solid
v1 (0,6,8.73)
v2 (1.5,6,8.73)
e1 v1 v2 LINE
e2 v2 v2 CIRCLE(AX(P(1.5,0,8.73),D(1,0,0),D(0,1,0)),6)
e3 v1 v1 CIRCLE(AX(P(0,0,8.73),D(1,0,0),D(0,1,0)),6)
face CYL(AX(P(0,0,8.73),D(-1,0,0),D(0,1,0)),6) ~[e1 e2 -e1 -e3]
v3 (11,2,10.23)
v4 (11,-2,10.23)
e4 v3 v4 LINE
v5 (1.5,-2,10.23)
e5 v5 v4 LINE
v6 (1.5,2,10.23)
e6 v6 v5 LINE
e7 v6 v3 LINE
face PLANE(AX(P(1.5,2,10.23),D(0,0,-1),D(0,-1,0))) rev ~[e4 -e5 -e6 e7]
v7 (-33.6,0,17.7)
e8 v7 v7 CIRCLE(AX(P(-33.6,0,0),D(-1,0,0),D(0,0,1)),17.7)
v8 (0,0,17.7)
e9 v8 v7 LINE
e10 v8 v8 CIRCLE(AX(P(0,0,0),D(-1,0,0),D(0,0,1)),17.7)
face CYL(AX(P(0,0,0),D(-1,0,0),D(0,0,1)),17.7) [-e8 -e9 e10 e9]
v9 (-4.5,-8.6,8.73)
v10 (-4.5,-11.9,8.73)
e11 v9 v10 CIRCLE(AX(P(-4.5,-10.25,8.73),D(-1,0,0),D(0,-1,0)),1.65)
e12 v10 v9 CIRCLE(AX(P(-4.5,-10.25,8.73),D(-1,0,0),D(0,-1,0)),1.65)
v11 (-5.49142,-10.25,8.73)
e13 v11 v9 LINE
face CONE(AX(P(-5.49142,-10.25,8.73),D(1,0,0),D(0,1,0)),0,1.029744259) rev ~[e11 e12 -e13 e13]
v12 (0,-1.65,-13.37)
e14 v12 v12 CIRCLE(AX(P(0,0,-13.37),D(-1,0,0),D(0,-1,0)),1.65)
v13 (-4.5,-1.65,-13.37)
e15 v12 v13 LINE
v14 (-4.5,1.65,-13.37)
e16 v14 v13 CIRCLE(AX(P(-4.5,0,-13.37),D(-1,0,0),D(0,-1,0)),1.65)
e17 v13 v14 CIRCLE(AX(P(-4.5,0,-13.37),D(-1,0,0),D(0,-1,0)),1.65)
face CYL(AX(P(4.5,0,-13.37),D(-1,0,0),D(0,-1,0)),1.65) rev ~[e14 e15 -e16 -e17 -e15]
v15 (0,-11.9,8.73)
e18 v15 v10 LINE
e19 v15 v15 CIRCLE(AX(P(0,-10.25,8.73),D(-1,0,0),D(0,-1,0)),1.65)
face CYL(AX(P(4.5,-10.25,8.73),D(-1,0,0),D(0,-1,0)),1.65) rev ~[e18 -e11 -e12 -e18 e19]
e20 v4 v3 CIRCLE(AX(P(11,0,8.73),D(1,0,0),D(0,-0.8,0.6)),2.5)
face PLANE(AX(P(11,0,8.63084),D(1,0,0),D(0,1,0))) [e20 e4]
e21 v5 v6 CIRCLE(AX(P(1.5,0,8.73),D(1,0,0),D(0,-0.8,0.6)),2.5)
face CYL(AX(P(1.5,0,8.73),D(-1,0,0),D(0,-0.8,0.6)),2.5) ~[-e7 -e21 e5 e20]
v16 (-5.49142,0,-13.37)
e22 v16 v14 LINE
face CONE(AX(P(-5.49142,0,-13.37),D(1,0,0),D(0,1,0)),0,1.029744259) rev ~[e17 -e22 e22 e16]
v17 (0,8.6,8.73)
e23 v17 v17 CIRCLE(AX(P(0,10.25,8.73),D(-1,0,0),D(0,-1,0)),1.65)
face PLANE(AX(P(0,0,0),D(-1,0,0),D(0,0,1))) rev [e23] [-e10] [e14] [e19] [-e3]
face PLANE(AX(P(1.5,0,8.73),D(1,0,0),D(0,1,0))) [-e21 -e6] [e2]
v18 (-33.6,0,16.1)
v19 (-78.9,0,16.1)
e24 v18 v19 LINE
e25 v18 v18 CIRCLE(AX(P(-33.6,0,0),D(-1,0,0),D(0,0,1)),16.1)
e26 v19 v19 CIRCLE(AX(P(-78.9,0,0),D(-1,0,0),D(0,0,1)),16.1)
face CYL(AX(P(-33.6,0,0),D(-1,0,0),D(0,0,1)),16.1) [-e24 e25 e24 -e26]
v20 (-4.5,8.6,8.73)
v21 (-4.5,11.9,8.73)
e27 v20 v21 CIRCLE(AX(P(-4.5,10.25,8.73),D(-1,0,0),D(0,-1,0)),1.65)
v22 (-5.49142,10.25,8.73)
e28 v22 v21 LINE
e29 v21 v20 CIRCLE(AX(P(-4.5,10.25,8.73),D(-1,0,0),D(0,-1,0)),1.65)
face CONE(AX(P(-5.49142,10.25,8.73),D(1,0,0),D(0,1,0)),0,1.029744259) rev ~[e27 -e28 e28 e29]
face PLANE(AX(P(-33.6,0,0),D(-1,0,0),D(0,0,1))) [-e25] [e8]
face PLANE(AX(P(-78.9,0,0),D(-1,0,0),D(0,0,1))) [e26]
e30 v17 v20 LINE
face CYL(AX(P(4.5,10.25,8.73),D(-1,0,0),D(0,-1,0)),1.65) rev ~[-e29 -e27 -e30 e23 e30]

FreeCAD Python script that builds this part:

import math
import FreeCAD as App
import Part
import Sketcher

V = App.Vector


def add_polygon(sketch, points):
    """Adds a closed chain of lines whose ends are joined by coincident constraints."""
    first, n = sketch.GeometryCount, len(points)
    for a, b in zip(points, points[1:] + points[:1]):
        sketch.addGeometry(Part.LineSegment(App.Vector(*a, 0), App.Vector(*b, 0)), False)
    for i in range(n):
        sketch.addConstraint(Sketcher.Constraint("Coincident", first + i, 2, first + (i + 1) % n, 1))

doc = App.newDocument("Part")
body = doc.addObject("PartDesign::Body", "Body")

# Sketch on XZ plane
sketch1 = body.newObject("Sketcher::SketchObject", "Sketch")
sketch1.AttachmentSupport = (doc.getObject("XZ_Plane"), [""])
sketch1.MapMode = "FlatFace"
add_polygon(sketch1, [(-78.9, 16.1), (-78.9, 0), (0, 0), (0, 17.7), (-33.6, 17.7), (-33.6, 16.1)])  # lines 0-5
sketch1.addConstraint(Sketcher.Constraint("Vertical", 0))
sketch1.addConstraint(Sketcher.Constraint("Horizontal", 1))
sketch1.addConstraint(Sketcher.Constraint("Vertical", 2))
sketch1.addConstraint(Sketcher.Constraint("Horizontal", 3))
sketch1.addConstraint(Sketcher.Constraint("Vertical", 4))
sketch1.addConstraint(Sketcher.Constraint("Horizontal", 5))
sketch1.addConstraint(Sketcher.Constraint("Coincident", 1, 2, -1, 1))
sketch1.addConstraint(Sketcher.Constraint("DistanceX", 1, 1, 1, 2, 78.9))
sketch1.addConstraint(Sketcher.Constraint("DistanceX", 3, 2, 3, 1, 33.6))
sketch1.addConstraint(Sketcher.Constraint("DistanceY", 0, 2, 0, 1, 16.1))
sketch1.addConstraint(Sketcher.Constraint("DistanceY", 2, 1, 2, 2, 17.7))
revolution = body.newObject("PartDesign::Revolution", "Revolution")
revolution.Profile = sketch1
revolution.ReferenceAxis = (sketch1, ["H_Axis"])
revolution.Angle = 360

# Sketch on YZ plane
sketch2 = body.newObject("Sketcher::SketchObject", "Sketch001")
sketch2.AttachmentSupport = (doc.getObject("YZ_Plane"), [""])
sketch2.MapMode = "FlatFace"
sketch2.addGeometry(Part.Circle(V(0, 9, 0), V(0, 0, 1), 6), False)
sketch2.addConstraint(Sketcher.Constraint("PointOnObject", 0, 3, -2))
sketch2.addConstraint(Sketcher.Constraint("Diameter", 0, 12.0))
sketch2.addConstraint(Sketcher.Constraint("DistanceY", -1, 1, 0, 3, 8.73))
pad1 = body.newObject("PartDesign::Pad", "Pad")
pad1.Profile = sketch2
pad1.Length = 1.5

# Sketch on YZ plane
sketch3 = body.newObject("Sketcher::SketchObject", "Sketch002")
sketch3.AttachmentSupport = (doc.getObject("YZ_Plane"), [""])
sketch3.MapMode = "FlatFace"
sketch3.AttachmentOffset = App.Placement(V(0, 0, 1.5), App.Rotation())
sketch3.addGeometry(Part.LineSegment(V(2, 10.2, 0), V(-2, 10.2, 0)), False)
sketch3.addGeometry(Part.ArcOfCircle(Part.Circle(V(0, 8.7, 0), V(0, 0, 1), 2.5), math.radians(143), math.radians(397)), False)
sketch3.addConstraint(Sketcher.Constraint("Coincident", 0, 1, 1, 2))
sketch3.addConstraint(Sketcher.Constraint("Coincident", 1, 1, 0, 2))
sketch3.addConstraint(Sketcher.Constraint("Horizontal", 0))
sketch3.addConstraint(Sketcher.Constraint("PointOnObject", 1, 3, -2))
sketch3.addConstraint(Sketcher.Constraint("Radius", 1, 2.5))
sketch3.addConstraint(Sketcher.Constraint("DistanceX", 0, 2, 0, 1, 4.0))
sketch3.addConstraint(Sketcher.Constraint("DistanceY", -1, 1, 1, 3, 8.73))
pad2 = body.newObject("PartDesign::Pad", "Pad001")
pad2.Profile = sketch3
pad2.Length = 9.5

# Sketch on YZ plane
sketch4 = body.newObject("Sketcher::SketchObject", "Sketch003")
sketch4.AttachmentSupport = (doc.getObject("YZ_Plane"), [""])
sketch4.MapMode = "FlatFace"
sketch4.addGeometry(Part.Circle(V(-10.2, 8.7, 0), V(0, 0, 1), 1.6), False)
sketch4.addGeometry(Part.Circle(V(10.2, 8.7, 0), V(0, 0, 1), 1.6), False)
sketch4.addGeometry(Part.Circle(V(0, -13.4, 0), V(0, 0, 1), 1.6), False)
sketch4.addConstraint(Sketcher.Constraint("Equal", 0, 1))
sketch4.addConstraint(Sketcher.Constraint("Equal", 1, 2))
sketch4.addConstraint(Sketcher.Constraint("Symmetric", 0, 3, 1, 3, -2))
sketch4.addConstraint(Sketcher.Constraint("PointOnObject", 2, 3, -2))
sketch4.addConstraint(Sketcher.Constraint("Diameter", 0, 3.3))
sketch4.addConstraint(Sketcher.Constraint("DistanceX", 0, 3, 1, 3, 20.5))
sketch4.addConstraint(Sketcher.Constraint("DistanceY", 2, 3, 0, 3, 22.1))
sketch4.addConstraint(Sketcher.Constraint("DistanceY", -1, 1, 0, 3, 8.73))
doc.recompute()
hole = body.newObject("PartDesign::Hole", "Hole")
hole.Profile = sketch4
hole.ThreadType = "None"
hole.Diameter = 3.3
hole.DepthType = "Dimension"
hole.Depth = 4.5
hole.DrillPoint = "Angled"
hole.DrillPointAngle = 118

doc.recompute()
